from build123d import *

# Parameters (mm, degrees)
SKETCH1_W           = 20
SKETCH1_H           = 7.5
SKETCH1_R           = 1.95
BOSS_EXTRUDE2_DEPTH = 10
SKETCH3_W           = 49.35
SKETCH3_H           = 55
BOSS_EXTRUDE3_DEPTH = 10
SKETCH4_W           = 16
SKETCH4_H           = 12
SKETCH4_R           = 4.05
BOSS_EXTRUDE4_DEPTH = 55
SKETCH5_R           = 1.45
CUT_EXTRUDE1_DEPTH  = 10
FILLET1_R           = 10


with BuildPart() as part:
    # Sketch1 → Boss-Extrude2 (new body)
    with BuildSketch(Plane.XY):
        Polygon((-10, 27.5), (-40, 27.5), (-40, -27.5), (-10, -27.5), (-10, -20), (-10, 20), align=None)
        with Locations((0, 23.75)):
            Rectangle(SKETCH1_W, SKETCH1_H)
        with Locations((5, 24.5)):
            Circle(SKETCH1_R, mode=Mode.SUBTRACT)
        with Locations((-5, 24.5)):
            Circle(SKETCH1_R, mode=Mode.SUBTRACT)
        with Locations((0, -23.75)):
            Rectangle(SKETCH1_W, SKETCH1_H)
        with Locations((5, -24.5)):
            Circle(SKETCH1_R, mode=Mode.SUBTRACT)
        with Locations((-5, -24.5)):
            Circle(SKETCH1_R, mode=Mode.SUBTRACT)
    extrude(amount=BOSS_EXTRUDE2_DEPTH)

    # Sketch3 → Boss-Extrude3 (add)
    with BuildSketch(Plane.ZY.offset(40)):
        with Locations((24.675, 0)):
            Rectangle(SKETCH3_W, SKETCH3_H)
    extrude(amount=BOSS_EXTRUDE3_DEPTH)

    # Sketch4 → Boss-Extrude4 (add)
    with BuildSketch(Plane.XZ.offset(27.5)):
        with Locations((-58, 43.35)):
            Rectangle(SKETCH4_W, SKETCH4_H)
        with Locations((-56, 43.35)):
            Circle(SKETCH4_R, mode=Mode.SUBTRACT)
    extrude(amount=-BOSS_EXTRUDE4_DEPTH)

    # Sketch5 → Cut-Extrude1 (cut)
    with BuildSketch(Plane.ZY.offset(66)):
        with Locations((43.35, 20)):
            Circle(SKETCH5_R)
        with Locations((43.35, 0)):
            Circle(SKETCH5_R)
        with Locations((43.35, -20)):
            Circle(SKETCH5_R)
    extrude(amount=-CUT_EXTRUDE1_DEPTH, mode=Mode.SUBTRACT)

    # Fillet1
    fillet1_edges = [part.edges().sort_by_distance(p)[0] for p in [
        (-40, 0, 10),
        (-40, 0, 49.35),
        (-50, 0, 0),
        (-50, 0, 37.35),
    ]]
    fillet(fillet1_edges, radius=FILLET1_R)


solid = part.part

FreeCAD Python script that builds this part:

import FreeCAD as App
import Part
import Sketcher
Q = App.Units.Quantity


def edges_at(feature, points):
    """Names of the edges that pass closest to the given points."""
    edges = feature.Shape.Edges
    near = lambda p: min(range(len(edges)), key=lambda i: edges[i].distToShape(Part.Vertex(*p))[0])
    return sorted({f"Edge{near(p) + 1}" for p in points})


def add_polygon(sketch, points):
    """Adds a closed chain of lines whose ends are joined by coincident constraints."""
    first, n = sketch.GeometryCount, len(points)
    for a, b in zip(points, points[1:] + points[:1]):
        sketch.addGeometry(Part.LineSegment(App.Vector(*a, 0), App.Vector(*b, 0)), False)
    for i in range(n):
        sketch.addConstraint(Sketcher.Constraint("Coincident", first + i, 2, first + (i + 1) % n, 1))

doc = App.newDocument("Part")
params = doc.addObject("Spreadsheet::Sheet", "Params")
for row, (alias, value) in enumerate([
    ("sketch1_diameter", "3.9 mm"),
    ("sketch1_width", "50 mm"),
    ("sketch1_width2", "20 mm"),
    ("sketch1_height", "55 mm"),
    ("sketch1_height2", "40 mm"),
    ("pad1_length", "10 mm"),
    ("sketch2_width", "55 mm"),
    ("sketch2_height", "49.35 mm"),
    ("pad2_length", "10 mm"),
    ("sketch3_diameter", "8.1 mm"),
    ("sketch3_width", "16 mm"),
    ("sketch3_height", "12 mm"),
    ("pad3_length", "55 mm"),
    ("sketch4_diameter", "2.9 mm"),
    ("pocket1_length", "10 mm"),
    ("fillet_radius", "10 mm"),
], start=1):
    params.set(f"A{row}", alias)
    params.set(f"B{row}", "=" + value)
    params.setAlias(f"B{row}", alias)

body = doc.addObject("PartDesign::Body", "Body")

# Sketch on XY plane
sketch1 = doc.addObject("Sketcher::SketchObject", "Sketch")
body.addObject(sketch1)
sketch1.AttachmentSupport = (doc.XY_Plane, [""])
sketch1.MapMode = "FlatFace"
add_polygon(sketch1, [(-40, 27.5), (-40, -27.5), (10, -27.5), (10, -20), (-10, -20), (-10, 20), (10, 20), (10, 27.5)])  # lines 0-7
sketch1.addGeometry(Part.Circle(App.Vector(-5, -24.5, 0), App.Vector(0, 0, 1), 1.95), False)  # 8
sketch1.addGeometry(Part.Circle(App.Vector(5, -24.5, 0), App.Vector(0, 0, 1), 1.95), False)  # 9
sketch1.addGeometry(Part.Circle(App.Vector(-5, 24.5, 0), App.Vector(0, 0, 1), 1.95), False)  # 10
sketch1.addGeometry(Part.Circle(App.Vector(5, 24.5, 0), App.Vector(0, 0, 1), 1.95), False)  # 11
sketch1.addConstraint([
    Sketcher.Constraint("Vertical", 0),
    Sketcher.Constraint("Horizontal", 1),
    Sketcher.Constraint("Vertical", 2),
    Sketcher.Constraint("Horizontal", 3),
    Sketcher.Constraint("Vertical", 4),
    Sketcher.Constraint("Horizontal", 5),
    Sketcher.Constraint("Vertical", 6),
    Sketcher.Constraint("Horizontal", 7),
    Sketcher.Constraint("Equal", 8, 9),
    Sketcher.Constraint("Equal", 9, 10),
    Sketcher.Constraint("Equal", 10, 11),
    Sketcher.Constraint("Symmetric", 9, 3, 10, 3, -1, 1),
    Sketcher.Constraint("Symmetric", 8, 3, 11, 3, -1, 1),
    Sketcher.Constraint("Symmetric", 2, 2, 4, 2, -1, 1),
    Sketcher.Constraint("Symmetric", 8, 3, 9, 3, -2),
    Sketcher.Constraint("Symmetric", 1, 2, 6, 2, -1),
    Sketcher.Constraint("Diameter", 8, Q("3.9 mm")),
    Sketcher.Constraint("DistanceX", 1, 1, 1, 2, Q("50 mm")),
    Sketcher.Constraint("DistanceX", 3, 2, 3, 1, Q("20 mm")),
    Sketcher.Constraint("DistanceY", 0, 2, 0, 1, Q("55 mm")),
    Sketcher.Constraint("DistanceY", 4, 1, 4, 2, Q("40 mm")),
    Sketcher.Constraint("DistanceX", 8, 3, -1, 1, Q("5 mm")),
    Sketcher.Constraint("DistanceY", 8, 3, 10, 3, Q("49 mm")),
])
sketch1.setExpression("Constraints[24]", "Params.sketch1_diameter")
sketch1.setExpression("Constraints[25]", "Params.sketch1_width")
sketch1.setExpression("Constraints[26]", "Params.sketch1_width2")
sketch1.setExpression("Constraints[27]", "Params.sketch1_height")
sketch1.setExpression("Constraints[28]", "Params.sketch1_height2")
pad1 = doc.addObject("PartDesign::Pad", "Pad")
body.addObject(pad1)
pad1.Profile = sketch1
pad1.setExpression("Length", "Params.pad1_length")

# Sketch on YZ plane
sketch2 = doc.addObject("Sketcher::SketchObject", "Sketch001")
body.addObject(sketch2)
sketch2.AttachmentSupport = (doc.YZ_Plane, [""])
sketch2.MapMode = "FlatFace"
sketch2.AttachmentOffset = App.Placement(App.Vector(0, 0, -40), App.Rotation())
add_polygon(sketch2, [(27.5, 0), (-27.5, 0), (-27.5, 49.35), (27.5, 49.35)])  # lines 0-3
sketch2.addConstraint([
    Sketcher.Constraint("Horizontal", 0),
    Sketcher.Constraint("Vertical", 1),
    Sketcher.Constraint("Horizontal", 2),
    Sketcher.Constraint("Vertical", 3),
    Sketcher.Constraint("Symmetric", 0, 2, 3, 2, -1, 1),
    Sketcher.Constraint("DistanceX", 0, 2, 0, 1, Q("55 mm")),
    Sketcher.Constraint("DistanceY", 1, 1, 1, 2, Q("49.35 mm")),
])
sketch2.setExpression("Constraints[9]", "Params.sketch2_width")
sketch2.setExpression("Constraints[10]", "Params.sketch2_height")
pad2 = doc.addObject("PartDesign::Pad", "Pad001")
body.addObject(pad2)
pad2.Profile = sketch2
pad2.setExpression("Length", "Params.pad2_length")
pad2.Reversed = True

# Sketch on XZ plane
sketch3 = doc.addObject("Sketcher::SketchObject", "Sketch002")
body.addObject(sketch3)
sketch3.AttachmentSupport = (doc.XZ_Plane, [""])
sketch3.MapMode = "FlatFace"
sketch3.AttachmentOffset = App.Placement(App.Vector(0, 0, 27.5), App.Rotation())
add_polygon(sketch3, [(-66, 49.35), (-66, 37.35), (-50, 37.35), (-50, 49.35)])  # lines 0-3
sketch3.addGeometry(Part.Circle(App.Vector(-56, 43.35, 0), App.Vector(0, 0, 1), 4.05), False)  # 4
sketch3.addConstraint([
    Sketcher.Constraint("Vertical", 0),
    Sketcher.Constraint("Horizontal", 1),
    Sketcher.Constraint("Vertical", 2),
    Sketcher.Constraint("Horizontal", 3),
    Sketcher.Constraint("Diameter", 4, Q("8.1 mm")),
    Sketcher.Constraint("DistanceX", 1, 1, 1, 2, Q("16 mm")),
    Sketcher.Constraint("DistanceY", 0, 2, 0, 1, Q("12 mm")),
    Sketcher.Constraint("DistanceX", 4, 3, -1, 1, Q("56 mm")),
    Sketcher.Constraint("DistanceX", 0, 2, -1, 1, Q("66 mm")),
    Sketcher.Constraint("DistanceY", 0, 2, 4, 3, Q("6 mm")),
    Sketcher.Constraint("DistanceY", -1, 1, 4, 3, Q("43.35 mm")),
])
sketch3.setExpression("Constraints[8]", "Params.sketch3_diameter")
sketch3.setExpression("Constraints[9]", "Params.sketch3_width")
sketch3.setExpression("Constraints[10]", "Params.sketch3_height")
pad3 = doc.addObject("PartDesign::Pad", "Pad002")
body.addObject(pad3)
pad3.Profile = sketch3
pad3.setExpression("Length", "Params.pad3_length")
pad3.Reversed = True

# Sketch on YZ plane
sketch4 = doc.addObject("Sketcher::SketchObject", "Sketch003")
body.addObject(sketch4)
sketch4.AttachmentSupport = (doc.YZ_Plane, [""])
sketch4.MapMode = "FlatFace"
sketch4.AttachmentOffset = App.Placement(App.Vector(0, 0, -66), App.Rotation())
sketch4.addGeometry([
    Part.Circle(App.Vector(20, 43.35, 0), App.Vector(0, 0, 1), 1.45),
    Part.Circle(App.Vector(0, 43.35, 0), App.Vector(0, 0, 1), 1.45),
    Part.Circle(App.Vector(-20, 43.35, 0), App.Vector(0, 0, 1), 1.45),
], False)
sketch4.addConstraint([
    Sketcher.Constraint("Equal", 0, 1),
    Sketcher.Constraint("Equal", 1, 2),
    Sketcher.Constraint("Symmetric", 0, 3, 2, 3, -2),
    Sketcher.Constraint("PointOnObject", 1, 3, -2),
    Sketcher.Constraint("Horizontal", 0, 3, 1, 3),
    Sketcher.Constraint("Diameter", 0, Q("2.9 mm")),
    Sketcher.Constraint("DistanceX", -1, 1, 0, 3, Q("20 mm")),
    Sketcher.Constraint("DistanceY", -1, 1, 0, 3, Q("43.35 mm")),
])
sketch4.setExpression("Constraints[5]", "Params.sketch4_diameter")
pocket1 = doc.addObject("PartDesign::Pocket", "Pocket")
body.addObject(pocket1)
pocket1.Profile = sketch4
pocket1.setExpression("Length", "Params.pocket1_length")
pocket1.Reversed = True
doc.recompute()

fillet = doc.addObject("PartDesign::Fillet", "Fillet")
body.addObject(fillet)
fillet.Base = (pocket1, edges_at(pocket1, [
    (-40, 0, 10),
    (-40, 0, 49.35),
    (-50, 0, 0),
    (-50, 0, 37.35),
]))
fillet.setExpression("Radius", "Params.fillet_radius")

doc.recompute()
